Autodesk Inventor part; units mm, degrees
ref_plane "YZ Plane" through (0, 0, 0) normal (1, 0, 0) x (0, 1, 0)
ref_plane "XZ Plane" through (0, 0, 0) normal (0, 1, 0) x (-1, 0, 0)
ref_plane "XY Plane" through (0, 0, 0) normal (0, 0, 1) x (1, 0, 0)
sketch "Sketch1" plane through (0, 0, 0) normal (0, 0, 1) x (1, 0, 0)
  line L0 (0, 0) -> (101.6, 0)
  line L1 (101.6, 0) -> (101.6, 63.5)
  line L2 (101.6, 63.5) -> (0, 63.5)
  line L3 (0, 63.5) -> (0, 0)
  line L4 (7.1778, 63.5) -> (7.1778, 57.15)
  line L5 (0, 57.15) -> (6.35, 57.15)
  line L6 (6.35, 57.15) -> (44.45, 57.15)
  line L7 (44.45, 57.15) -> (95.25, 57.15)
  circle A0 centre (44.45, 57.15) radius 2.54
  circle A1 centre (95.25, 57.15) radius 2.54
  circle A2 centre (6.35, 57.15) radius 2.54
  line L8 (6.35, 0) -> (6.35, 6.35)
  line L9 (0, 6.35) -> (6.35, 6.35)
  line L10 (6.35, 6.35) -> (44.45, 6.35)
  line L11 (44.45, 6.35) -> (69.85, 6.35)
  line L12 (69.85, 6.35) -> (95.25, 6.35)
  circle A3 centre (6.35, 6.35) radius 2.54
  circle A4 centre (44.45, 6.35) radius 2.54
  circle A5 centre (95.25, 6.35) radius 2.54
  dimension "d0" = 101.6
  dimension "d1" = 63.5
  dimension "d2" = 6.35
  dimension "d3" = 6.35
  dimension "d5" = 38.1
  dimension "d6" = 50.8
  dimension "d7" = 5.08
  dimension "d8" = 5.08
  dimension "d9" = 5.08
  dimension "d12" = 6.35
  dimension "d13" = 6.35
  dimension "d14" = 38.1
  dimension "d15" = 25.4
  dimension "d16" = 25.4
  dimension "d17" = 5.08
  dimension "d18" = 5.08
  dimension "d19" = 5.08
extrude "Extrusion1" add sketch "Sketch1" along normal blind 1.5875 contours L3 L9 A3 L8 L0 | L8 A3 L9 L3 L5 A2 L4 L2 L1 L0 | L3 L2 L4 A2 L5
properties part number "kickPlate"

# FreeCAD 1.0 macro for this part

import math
import FreeCAD as App
import Part
import Sketcher
Q = App.Units.Quantity

doc = App.newDocument("Part")
body = doc.addObject("PartDesign::Body", "Body")

sketch1 = body.newObject("Sketcher::SketchObject", "Sketch")
sketch1.AttachmentSupport = (doc.getObject("XY_Plane"), [""])
sketch1.MapMode = "FlatFace"
sketch1.addGeometry(Part.LineSegment(App.Vector(0, 0, 0), App.Vector(101.6, 0, 0)), False)
sketch1.addGeometry(Part.LineSegment(App.Vector(101.6, 0, 0), App.Vector(101.6, 63.5, 0)), False)
sketch1.addGeometry(Part.LineSegment(App.Vector(101.6, 63.5, 0), App.Vector(0, 63.5, 0)), False)
sketch1.addGeometry(Part.LineSegment(App.Vector(0, 63.5, 0), App.Vector(0, 0, 0)), False)
sketch1.addGeometry(Part.Circle(App.Vector(6.3, 6.3, 0), App.Vector(0, 0, 1), 2.5), False)
sketch1.addGeometry(Part.Circle(App.Vector(6.3, 57.1, 0), App.Vector(0, 0, 1), 2.5), False)
sketch1.addGeometry(Part.ArcOfCircle(Part.Circle(App.Vector(44.5, 6.3, 0), App.Vector(0, 0, 1), 2.5), math.radians(180), math.radians(360)), False)
sketch1.addGeometry(Part.ArcOfCircle(Part.Circle(App.Vector(44.5, 6.3, 0), App.Vector(0, 0, 1), 2.5), math.radians(0), math.radians(180)), False)
sketch1.addGeometry(Part.Circle(App.Vector(95.2, 6.3, 0), App.Vector(0, 0, 1), 2.5), False)
sketch1.addGeometry(Part.ArcOfCircle(Part.Circle(App.Vector(44.5, 57.1, 0), App.Vector(0, 0, 1), 2.5), math.radians(180), math.radians(360)), False)
sketch1.addGeometry(Part.ArcOfCircle(Part.Circle(App.Vector(44.5, 57.1, 0), App.Vector(0, 0, 1), 2.5), math.radians(0), math.radians(180)), False)
sketch1.addGeometry(Part.Circle(App.Vector(95.2, 57.1, 0), App.Vector(0, 0, 1), 2.5), False)
sketch1.addConstraint(Sketcher.Constraint("Coincident", 0, 2, 1, 1))
sketch1.addConstraint(Sketcher.Constraint("Coincident", 1, 2, 2, 1))
sketch1.addConstraint(Sketcher.Constraint("Coincident", 2, 2, 3, 1))
sketch1.addConstraint(Sketcher.Constraint("Coincident", 3, 2, 0, 1))
sketch1.addConstraint(Sketcher.Constraint("Tangent", 6, 1, 7, 2))
sketch1.addConstraint(Sketcher.Constraint("Coincident", 7, 1, 6, 2))
sketch1.addConstraint(Sketcher.Constraint("Tangent", 9, 1, 10, 2))
sketch1.addConstraint(Sketcher.Constraint("Coincident", 10, 1, 9, 2))
sketch1.addConstraint(Sketcher.Constraint("Horizontal", 0))
sketch1.addConstraint(Sketcher.Constraint("Vertical", 1))
sketch1.addConstraint(Sketcher.Constraint("Horizontal", 2))
sketch1.addConstraint(Sketcher.Constraint("Vertical", 3))
sketch1.addConstraint(Sketcher.Constraint("Coincident", 3, 2, -1, 1))
sketch1.addConstraint(Sketcher.Constraint("Equal", 4, 5))
sketch1.addConstraint(Sketcher.Constraint("Equal", 5, 6))
sketch1.addConstraint(Sketcher.Constraint("Equal", 7, 8))
sketch1.addConstraint(Sketcher.Constraint("Equal", 8, 9))
sketch1.addConstraint(Sketcher.Constraint("Equal", 10, 11))
sketch1.addConstraint(Sketcher.Constraint("Horizontal", 4, 3, 6, 3))
sketch1.addConstraint(Sketcher.Constraint("Horizontal", 7, 3, 8, 3))
sketch1.addConstraint(Sketcher.Constraint("Horizontal", 5, 3, 9, 3))
sketch1.addConstraint(Sketcher.Constraint("Horizontal", 10, 3, 11, 3))
sketch1.addConstraint(Sketcher.Constraint("Horizontal", 8, 3, 6, 1))
sketch1.addConstraint(Sketcher.Constraint("Horizontal", 6, 1, 7, 1))
sketch1.addConstraint(Sketcher.Constraint("Horizontal", 11, 3, 9, 1))
sketch1.addConstraint(Sketcher.Constraint("Horizontal", 9, 1, 10, 1))
sketch1.addConstraint(Sketcher.Constraint("Vertical", 4, 3, 5, 3))
sketch1.addConstraint(Sketcher.Constraint("Vertical", 7, 3, 9, 3))
sketch1.addConstraint(Sketcher.Constraint("Vertical", 8, 3, 11, 3))
sketch1.addConstraint(Sketcher.Constraint("Diameter", 4, Q("0.2 in")))
sketch1.addConstraint(Sketcher.Constraint("DistanceX", 0, 1, 0, 2, Q("4 in")))
sketch1.addConstraint(Sketcher.Constraint("DistanceY", 1, 1, 1, 2, Q("2.5 in")))
sketch1.addConstraint(Sketcher.Constraint("DistanceY", 4, 3, 5, 3, Q("2 in")))
sketch1.addConstraint(Sketcher.Constraint("DistanceX", 6, 3, 8, 3, Q("2 in")))
sketch1.addConstraint(Sketcher.Constraint("DistanceX", 4, 3, 6, 3, Q("1.5 in")))
sketch1.addConstraint(Sketcher.Constraint("DistanceX", -1, 1, 4, 3, Q("0.25 in")))
sketch1.addConstraint(Sketcher.Constraint("DistanceY", -1, 1, 4, 3, Q("0.25 in")))
pad1 = body.newObject("PartDesign::Pad", "Pad")
pad1.Profile = sketch1
pad1.Length = Q("0.0625 in")

doc.recompute()
